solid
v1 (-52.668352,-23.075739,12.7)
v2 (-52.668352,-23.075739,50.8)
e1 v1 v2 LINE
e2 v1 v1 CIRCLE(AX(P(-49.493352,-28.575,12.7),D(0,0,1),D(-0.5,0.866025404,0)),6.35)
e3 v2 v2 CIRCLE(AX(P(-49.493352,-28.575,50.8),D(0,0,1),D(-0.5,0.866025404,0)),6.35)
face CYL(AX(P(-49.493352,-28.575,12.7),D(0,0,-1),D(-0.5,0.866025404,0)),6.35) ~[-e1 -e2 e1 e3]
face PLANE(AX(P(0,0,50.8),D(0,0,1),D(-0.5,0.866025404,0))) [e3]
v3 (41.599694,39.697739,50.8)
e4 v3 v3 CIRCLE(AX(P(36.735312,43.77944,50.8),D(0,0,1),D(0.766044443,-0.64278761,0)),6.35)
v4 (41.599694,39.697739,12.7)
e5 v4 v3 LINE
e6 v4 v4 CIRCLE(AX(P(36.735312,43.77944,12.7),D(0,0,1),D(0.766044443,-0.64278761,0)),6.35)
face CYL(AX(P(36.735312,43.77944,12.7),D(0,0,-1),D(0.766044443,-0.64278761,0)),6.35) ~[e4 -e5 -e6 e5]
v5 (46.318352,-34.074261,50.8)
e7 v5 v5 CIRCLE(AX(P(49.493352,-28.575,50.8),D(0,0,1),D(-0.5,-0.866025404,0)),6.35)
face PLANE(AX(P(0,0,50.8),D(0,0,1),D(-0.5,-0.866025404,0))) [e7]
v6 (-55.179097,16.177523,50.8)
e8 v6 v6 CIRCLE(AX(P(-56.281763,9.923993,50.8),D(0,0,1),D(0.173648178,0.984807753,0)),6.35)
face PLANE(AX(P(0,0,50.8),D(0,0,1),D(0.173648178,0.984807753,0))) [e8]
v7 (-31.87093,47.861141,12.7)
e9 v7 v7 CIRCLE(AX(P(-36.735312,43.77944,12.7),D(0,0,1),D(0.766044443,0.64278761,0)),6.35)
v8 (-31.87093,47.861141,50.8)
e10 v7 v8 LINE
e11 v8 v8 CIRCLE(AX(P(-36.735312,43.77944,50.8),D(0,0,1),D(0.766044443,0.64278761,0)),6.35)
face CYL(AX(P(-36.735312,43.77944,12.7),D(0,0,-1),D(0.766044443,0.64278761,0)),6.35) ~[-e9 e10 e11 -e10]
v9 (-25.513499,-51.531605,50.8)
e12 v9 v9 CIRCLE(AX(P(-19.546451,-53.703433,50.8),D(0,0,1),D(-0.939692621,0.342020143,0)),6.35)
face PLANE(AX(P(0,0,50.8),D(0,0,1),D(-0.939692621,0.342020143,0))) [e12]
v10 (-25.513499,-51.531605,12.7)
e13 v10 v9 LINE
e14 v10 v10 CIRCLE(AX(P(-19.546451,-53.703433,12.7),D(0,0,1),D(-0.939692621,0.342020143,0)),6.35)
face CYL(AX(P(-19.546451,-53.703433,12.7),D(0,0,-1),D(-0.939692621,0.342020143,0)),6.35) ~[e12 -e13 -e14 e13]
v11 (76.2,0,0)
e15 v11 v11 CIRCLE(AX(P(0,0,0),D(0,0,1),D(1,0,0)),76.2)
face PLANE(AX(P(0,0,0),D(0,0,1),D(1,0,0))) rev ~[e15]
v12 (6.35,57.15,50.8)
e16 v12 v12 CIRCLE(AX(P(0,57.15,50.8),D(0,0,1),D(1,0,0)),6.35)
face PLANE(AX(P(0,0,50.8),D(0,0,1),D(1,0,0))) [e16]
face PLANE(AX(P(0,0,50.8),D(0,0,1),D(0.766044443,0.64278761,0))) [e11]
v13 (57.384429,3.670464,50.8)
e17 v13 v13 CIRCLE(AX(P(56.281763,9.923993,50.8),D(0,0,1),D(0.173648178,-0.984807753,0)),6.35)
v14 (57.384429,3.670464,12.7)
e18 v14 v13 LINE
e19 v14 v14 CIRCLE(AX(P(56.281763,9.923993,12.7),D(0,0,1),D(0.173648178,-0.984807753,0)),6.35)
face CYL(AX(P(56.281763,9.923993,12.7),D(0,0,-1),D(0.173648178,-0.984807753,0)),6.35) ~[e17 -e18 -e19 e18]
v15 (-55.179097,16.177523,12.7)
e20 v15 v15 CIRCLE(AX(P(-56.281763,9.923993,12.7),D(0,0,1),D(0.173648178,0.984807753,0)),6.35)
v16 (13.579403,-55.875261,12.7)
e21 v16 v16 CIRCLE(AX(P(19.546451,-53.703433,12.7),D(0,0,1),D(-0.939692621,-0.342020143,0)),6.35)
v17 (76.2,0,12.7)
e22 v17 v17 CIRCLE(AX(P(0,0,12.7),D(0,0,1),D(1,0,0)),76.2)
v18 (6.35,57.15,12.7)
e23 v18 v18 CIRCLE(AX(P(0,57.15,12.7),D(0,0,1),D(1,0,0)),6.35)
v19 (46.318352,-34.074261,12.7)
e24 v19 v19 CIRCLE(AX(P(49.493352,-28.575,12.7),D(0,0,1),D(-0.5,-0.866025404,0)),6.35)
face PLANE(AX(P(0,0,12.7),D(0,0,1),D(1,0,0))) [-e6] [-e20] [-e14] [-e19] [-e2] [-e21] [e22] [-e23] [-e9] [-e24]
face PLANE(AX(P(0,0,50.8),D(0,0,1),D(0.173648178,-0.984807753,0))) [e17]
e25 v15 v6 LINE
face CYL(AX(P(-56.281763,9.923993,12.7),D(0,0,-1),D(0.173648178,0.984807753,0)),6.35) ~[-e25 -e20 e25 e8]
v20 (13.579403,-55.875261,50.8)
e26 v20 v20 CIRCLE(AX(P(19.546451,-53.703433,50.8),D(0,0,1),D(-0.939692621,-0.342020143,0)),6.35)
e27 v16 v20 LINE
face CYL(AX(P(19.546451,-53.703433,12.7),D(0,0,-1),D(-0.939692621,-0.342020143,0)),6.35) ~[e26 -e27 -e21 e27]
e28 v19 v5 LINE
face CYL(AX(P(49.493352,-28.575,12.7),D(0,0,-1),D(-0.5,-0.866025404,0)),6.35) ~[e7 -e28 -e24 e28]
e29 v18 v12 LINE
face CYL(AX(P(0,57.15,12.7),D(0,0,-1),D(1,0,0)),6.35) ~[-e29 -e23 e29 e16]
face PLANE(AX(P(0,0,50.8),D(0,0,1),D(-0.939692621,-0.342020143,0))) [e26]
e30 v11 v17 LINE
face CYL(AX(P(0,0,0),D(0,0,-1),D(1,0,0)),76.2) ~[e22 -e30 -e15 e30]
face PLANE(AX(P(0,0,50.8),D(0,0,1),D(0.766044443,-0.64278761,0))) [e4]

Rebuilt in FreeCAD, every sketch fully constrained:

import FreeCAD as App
import Part
import Sketcher
from FreeCAD import Vector
Q = App.Units.Quantity

doc = App.newDocument("Part")
body = doc.addObject("PartDesign::Body", "Body")

# Sketch on XY plane
sketch1 = body.newObject("Sketcher::SketchObject", "Sketch")
sketch1.AttachmentSupport = (doc.getObject("XY_Plane"), [""])
sketch1.MapMode = "FlatFace"
sketch1.addGeometry(Part.Circle(Vector(0, 0, 0), Vector(0, 0, 1), 76), False)
sketch1.addConstraint([
    Sketcher.Constraint("Coincident", 0, 3, -1, 1),
    Sketcher.Constraint("Diameter", 0, Q("6 in")),
])
pad1 = body.newObject("PartDesign::Pad", "Pad")
pad1.Profile = sketch1
pad1.Length = Q("0.5 in")

# Sketch on XY plane
sketch2 = body.newObject("Sketcher::SketchObject", "Sketch001")
sketch2.AttachmentSupport = (doc.getObject("XY_Plane"), [""])
sketch2.MapMode = "FlatFace"
sketch2.AttachmentOffset = App.Placement(Vector(0, 0, 0.5 * 25.4), App.Rotation())
sketch2.addGeometry(Part.Circle(Vector(0, 57, 0), Vector(0, 0, 1), 6), False)
sketch2.addConstraint([
    Sketcher.Constraint("PointOnObject", 0, 3, -2),
    Sketcher.Constraint("Diameter", 0, Q("0.5 in")),
    Sketcher.Constraint("DistanceY", -1, 1, 0, 3, Q("2.25 in")),
])
pad2 = body.newObject("PartDesign::Pad", "Pad001")
pad2.Profile = sketch2
pad2.Length = Q("1.5 in")
doc.recompute()

polarpattern = body.newObject("PartDesign::PolarPattern", "PolarPattern")
polarpattern.Originals = [pad2]
polarpattern.Axis = (doc.getObject("Z_Axis"), [""])
polarpattern.Angle = 360
polarpattern.Occurrences = 9
body.Tip = polarpattern

doc.recompute()
